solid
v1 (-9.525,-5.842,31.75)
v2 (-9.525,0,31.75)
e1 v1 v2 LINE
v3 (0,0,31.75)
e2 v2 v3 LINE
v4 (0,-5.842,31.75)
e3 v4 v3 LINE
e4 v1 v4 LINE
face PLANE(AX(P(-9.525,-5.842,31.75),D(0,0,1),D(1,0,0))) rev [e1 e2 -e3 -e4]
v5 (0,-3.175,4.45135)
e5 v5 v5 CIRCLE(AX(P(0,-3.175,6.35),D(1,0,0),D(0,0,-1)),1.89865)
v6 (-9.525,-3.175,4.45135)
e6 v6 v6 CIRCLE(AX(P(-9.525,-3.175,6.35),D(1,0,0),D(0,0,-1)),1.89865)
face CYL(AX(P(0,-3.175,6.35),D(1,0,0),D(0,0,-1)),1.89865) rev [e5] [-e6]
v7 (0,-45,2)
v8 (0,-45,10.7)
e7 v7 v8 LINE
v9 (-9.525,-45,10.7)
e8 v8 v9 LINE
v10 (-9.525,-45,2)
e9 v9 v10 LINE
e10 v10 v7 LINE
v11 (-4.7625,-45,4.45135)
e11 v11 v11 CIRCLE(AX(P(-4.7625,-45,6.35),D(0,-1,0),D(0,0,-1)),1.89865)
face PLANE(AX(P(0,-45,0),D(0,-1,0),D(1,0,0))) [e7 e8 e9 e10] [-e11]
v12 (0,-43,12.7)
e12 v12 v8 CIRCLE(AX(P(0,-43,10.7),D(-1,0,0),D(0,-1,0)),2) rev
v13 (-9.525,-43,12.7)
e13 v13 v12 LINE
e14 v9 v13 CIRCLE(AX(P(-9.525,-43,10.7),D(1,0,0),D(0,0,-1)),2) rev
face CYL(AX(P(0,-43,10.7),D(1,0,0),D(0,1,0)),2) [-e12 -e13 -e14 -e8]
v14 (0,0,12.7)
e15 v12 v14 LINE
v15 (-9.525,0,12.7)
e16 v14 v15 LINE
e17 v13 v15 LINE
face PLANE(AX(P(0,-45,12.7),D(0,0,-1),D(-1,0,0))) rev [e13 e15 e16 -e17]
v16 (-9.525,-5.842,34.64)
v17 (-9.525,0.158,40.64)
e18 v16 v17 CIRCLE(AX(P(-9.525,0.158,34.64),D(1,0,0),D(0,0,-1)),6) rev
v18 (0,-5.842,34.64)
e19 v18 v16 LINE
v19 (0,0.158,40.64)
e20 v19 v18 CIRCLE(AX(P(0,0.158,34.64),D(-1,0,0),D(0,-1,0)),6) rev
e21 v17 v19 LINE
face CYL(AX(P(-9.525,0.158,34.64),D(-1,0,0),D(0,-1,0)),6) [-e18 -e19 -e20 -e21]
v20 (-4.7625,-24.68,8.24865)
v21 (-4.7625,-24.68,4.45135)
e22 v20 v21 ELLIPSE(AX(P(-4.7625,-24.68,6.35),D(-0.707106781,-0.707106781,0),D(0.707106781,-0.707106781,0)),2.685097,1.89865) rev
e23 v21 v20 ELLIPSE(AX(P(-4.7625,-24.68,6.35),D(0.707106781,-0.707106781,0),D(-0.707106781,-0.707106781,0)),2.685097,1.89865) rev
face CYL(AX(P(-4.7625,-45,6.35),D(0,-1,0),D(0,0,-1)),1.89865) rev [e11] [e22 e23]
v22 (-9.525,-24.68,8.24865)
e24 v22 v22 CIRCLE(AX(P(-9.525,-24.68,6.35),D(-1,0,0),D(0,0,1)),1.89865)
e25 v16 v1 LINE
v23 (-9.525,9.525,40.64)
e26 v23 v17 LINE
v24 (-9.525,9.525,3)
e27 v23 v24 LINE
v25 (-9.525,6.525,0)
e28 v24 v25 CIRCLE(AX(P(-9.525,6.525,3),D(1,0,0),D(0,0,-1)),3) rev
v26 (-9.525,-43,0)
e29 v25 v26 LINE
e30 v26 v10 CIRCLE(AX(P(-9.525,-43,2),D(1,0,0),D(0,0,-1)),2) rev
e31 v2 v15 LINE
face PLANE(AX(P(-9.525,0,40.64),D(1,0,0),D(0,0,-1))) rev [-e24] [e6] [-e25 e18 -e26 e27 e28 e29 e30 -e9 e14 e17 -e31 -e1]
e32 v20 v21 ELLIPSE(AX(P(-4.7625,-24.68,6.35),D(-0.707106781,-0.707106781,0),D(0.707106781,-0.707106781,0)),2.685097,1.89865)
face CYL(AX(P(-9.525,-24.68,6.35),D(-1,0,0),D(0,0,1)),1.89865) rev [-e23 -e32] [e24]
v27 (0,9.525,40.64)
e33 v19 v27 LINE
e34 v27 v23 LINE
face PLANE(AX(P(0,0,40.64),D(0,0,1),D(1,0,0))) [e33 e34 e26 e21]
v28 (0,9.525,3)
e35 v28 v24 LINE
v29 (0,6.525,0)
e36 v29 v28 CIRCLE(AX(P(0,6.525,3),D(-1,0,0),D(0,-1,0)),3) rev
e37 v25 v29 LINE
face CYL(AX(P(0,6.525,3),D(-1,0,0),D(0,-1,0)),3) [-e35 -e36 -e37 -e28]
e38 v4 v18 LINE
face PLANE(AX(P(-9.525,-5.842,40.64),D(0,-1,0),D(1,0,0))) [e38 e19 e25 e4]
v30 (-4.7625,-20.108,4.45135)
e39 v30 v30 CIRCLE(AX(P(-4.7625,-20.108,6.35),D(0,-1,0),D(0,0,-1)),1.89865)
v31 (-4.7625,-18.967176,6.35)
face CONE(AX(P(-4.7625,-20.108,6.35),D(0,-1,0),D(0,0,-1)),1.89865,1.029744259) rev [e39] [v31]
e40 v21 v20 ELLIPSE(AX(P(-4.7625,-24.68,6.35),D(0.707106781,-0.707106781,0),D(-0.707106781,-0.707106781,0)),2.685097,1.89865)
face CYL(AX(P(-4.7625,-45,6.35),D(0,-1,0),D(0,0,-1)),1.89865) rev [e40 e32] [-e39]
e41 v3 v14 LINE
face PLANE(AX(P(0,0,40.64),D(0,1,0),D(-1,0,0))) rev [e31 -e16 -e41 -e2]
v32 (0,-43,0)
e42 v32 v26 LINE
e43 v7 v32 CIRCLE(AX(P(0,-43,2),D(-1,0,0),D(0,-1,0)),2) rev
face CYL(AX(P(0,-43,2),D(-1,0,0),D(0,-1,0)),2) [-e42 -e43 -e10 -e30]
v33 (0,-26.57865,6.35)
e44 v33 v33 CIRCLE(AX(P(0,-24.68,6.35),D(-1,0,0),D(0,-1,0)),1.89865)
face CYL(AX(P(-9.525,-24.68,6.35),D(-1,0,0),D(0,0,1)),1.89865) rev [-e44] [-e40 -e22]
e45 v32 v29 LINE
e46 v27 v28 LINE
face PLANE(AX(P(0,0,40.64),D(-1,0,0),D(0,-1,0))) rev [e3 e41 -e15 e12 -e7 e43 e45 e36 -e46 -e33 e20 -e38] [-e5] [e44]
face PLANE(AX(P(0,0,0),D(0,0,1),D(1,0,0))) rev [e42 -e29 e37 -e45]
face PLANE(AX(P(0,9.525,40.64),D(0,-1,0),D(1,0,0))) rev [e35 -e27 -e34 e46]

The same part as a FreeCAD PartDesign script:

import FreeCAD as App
import Part
import Sketcher
Q = App.Units.Quantity


def edges_at(feature, points):
    """Names of the edges that pass closest to the given points."""
    edges = feature.Shape.Edges
    near = lambda p: min(range(len(edges)), key=lambda i: edges[i].distToShape(Part.Vertex(*p))[0])
    return sorted({f"Edge{near(p) + 1}" for p in points})

doc = App.newDocument("Part")
body = doc.addObject("PartDesign::Body", "Body")

sketch1 = doc.addObject("Sketcher::SketchObject", "Sketch")
body.addObject(sketch1)
sketch1.AttachmentSupport = (doc.XY_Plane, [""])
sketch1.MapMode = "FlatFace"
sketch1.addGeometry([
    Part.LineSegment(App.Vector(-9.525, 9.525, 0), App.Vector(-9.525, 0, 0)),
    Part.LineSegment(App.Vector(-9.525, 0, 0), App.Vector(0, 0, 0)),
    Part.LineSegment(App.Vector(0, 0, 0), App.Vector(0, 9.525, 0)),
    Part.LineSegment(App.Vector(0, 9.525, 0), App.Vector(-9.525, 9.525, 0)),
], False)
sketch1.addConstraint([
    Sketcher.Constraint("Coincident", 0, 2, 1, 1),
    Sketcher.Constraint("Coincident", 1, 2, 2, 1),
    Sketcher.Constraint("Coincident", 2, 2, 3, 1),
    Sketcher.Constraint("Coincident", 3, 2, 0, 1),
    Sketcher.Constraint("Vertical", 0),
    Sketcher.Constraint("Horizontal", 1),
    Sketcher.Constraint("Vertical", 2),
    Sketcher.Constraint("Horizontal", 3),
    Sketcher.Constraint("Coincident", 1, 2, -1, 1),
    Sketcher.Constraint("Equal", 3, 0),
    Sketcher.Constraint("DistanceX", 1, 1, 1, 2, Q("0.375 in")),
])
pad1 = doc.addObject("PartDesign::Pad", "Pad")
body.addObject(pad1)
pad1.Profile = sketch1
pad1.Length = Q("1.6 in")

sketch2 = doc.addObject("Sketcher::SketchObject", "Sketch001")
body.addObject(sketch2)
sketch2.AttachmentSupport = (doc.XZ_Plane, [""])
sketch2.MapMode = "FlatFace"
sketch2.addGeometry([
    Part.LineSegment(App.Vector(-9.525, 40.64, 0), App.Vector(-9.525, 31.75, 0)),
    Part.LineSegment(App.Vector(-9.525, 31.75, 0), App.Vector(0, 31.75, 0)),
    Part.LineSegment(App.Vector(0, 31.75, 0), App.Vector(0, 40.64, 0)),
    Part.LineSegment(App.Vector(0, 40.64, 0), App.Vector(-9.525, 40.64, 0)),
], False)
sketch2.addConstraint([
    Sketcher.Constraint("Coincident", 0, 2, 1, 1),
    Sketcher.Constraint("Coincident", 1, 2, 2, 1),
    Sketcher.Constraint("Coincident", 2, 2, 3, 1),
    Sketcher.Constraint("Coincident", 3, 2, 0, 1),
    Sketcher.Constraint("Vertical", 0),
    Sketcher.Constraint("Horizontal", 1),
    Sketcher.Constraint("Vertical", 2),
    Sketcher.Constraint("Horizontal", 3),
    Sketcher.Constraint("PointOnObject", 1, 2, -2),
    Sketcher.Constraint("DistanceY", 0, 2, 0, 1, Q("0.35 in")),
    Sketcher.Constraint("DistanceY", -1, 1, 2, 2, Q("1.6 in")),
    Sketcher.Constraint("DistanceX", 1, 1, 1, 2, Q("0.375 in")),
])
pad2 = doc.addObject("PartDesign::Pad", "Pad001")
body.addObject(pad2)
pad2.Profile = sketch2
pad2.Length = Q("0.23 in")
doc.recompute()

fillet = doc.addObject("PartDesign::Fillet", "Fillet")
body.addObject(fillet)
fillet.Base = (pad2, edges_at(pad2, [(-4.763, -5.842, 40.64)]))
fillet.Radius = 6

sketch3 = doc.addObject("Sketcher::SketchObject", "Sketch002")
body.addObject(sketch3)
sketch3.AttachmentSupport = (doc.XZ_Plane, [""])
sketch3.MapMode = "FlatFace"
sketch3.addGeometry([
    Part.LineSegment(App.Vector(-9.525, 12.7, 0), App.Vector(-9.525, 0, 0)),
    Part.LineSegment(App.Vector(-9.525, 0, 0), App.Vector(0, 0, 0)),
    Part.LineSegment(App.Vector(0, 0, 0), App.Vector(0, 12.7, 0)),
    Part.LineSegment(App.Vector(0, 12.7, 0), App.Vector(-9.525, 12.7, 0)),
], False)
sketch3.addConstraint([
    Sketcher.Constraint("Coincident", 0, 2, 1, 1),
    Sketcher.Constraint("Coincident", 1, 2, 2, 1),
    Sketcher.Constraint("Coincident", 2, 2, 3, 1),
    Sketcher.Constraint("Coincident", 3, 2, 0, 1),
    Sketcher.Constraint("Vertical", 0),
    Sketcher.Constraint("Horizontal", 1),
    Sketcher.Constraint("Vertical", 2),
    Sketcher.Constraint("Horizontal", 3),
    Sketcher.Constraint("Coincident", 1, 2, -1, 1),
    Sketcher.Constraint("DistanceY", 0, 2, 0, 1, Q("0.5 in")),
    Sketcher.Constraint("DistanceX", 1, 1, 1, 2, Q("0.375 in")),
])
pad3 = doc.addObject("PartDesign::Pad", "Pad002")
body.addObject(pad3)
pad3.Profile = sketch3
pad3.Length = 45
doc.recompute()

fillet2 = doc.addObject("PartDesign::Fillet", "Fillet001")
body.addObject(fillet2)
fillet2.Base = (pad3, edges_at(pad3, [(-4.763, 9.525, 0)]))
fillet2.Radius = 3

sketch4 = doc.addObject("Sketcher::SketchObject", "Sketch003")
body.addObject(sketch4)
sketch4.AttachmentSupport = (doc.YZ_Plane, [""])
sketch4.MapMode = "FlatFace"
sketch4.addGeometry(Part.Circle(App.Vector(-3.175, 6.35, 0), App.Vector(0, 0, 1), 1.89865), False)
sketch4.addConstraint([
    Sketcher.Constraint("Diameter", 0, Q("0.1495 in")),
    Sketcher.Constraint("DistanceY", -1, 1, 0, 3, Q("0.25 in")),
    Sketcher.Constraint("DistanceX", 0, 3, -1, 1, Q("0.125 in")),
])
doc.recompute()
hole = doc.addObject("PartDesign::Hole", "Hole")
body.addObject(hole)
hole.Profile = sketch4
hole.ThreadType = "None"
hole.Diameter = Q("0.1495 in")
hole.DepthType = "Dimension"
hole.Depth = Q("0.39 in")
hole.DrillPoint = "Angled"
hole.DrillPointAngle = 118

sketch5 = doc.addObject("Sketcher::SketchObject", "Sketch004")
body.addObject(sketch5)
sketch5.AttachmentSupport = (doc.XZ_Plane, [""])
sketch5.MapMode = "FlatFace"
sketch5.AttachmentOffset = App.Placement(App.Vector(0, 0, 45), App.Rotation())
sketch5.addGeometry(Part.Circle(App.Vector(-4.7625, 6.35, 0), App.Vector(0, 0, 1), 1.89865), False)
sketch5.addConstraint([
    Sketcher.Constraint("Diameter", 0, Q("0.1495 in")),
    Sketcher.Constraint("DistanceY", -1, 1, 0, 3, Q("0.25 in")),
    Sketcher.Constraint("DistanceX", 0, 3, -1, 1, Q("0.1875 in")),
])
doc.recompute()
hole2 = doc.addObject("PartDesign::Hole", "Hole001")
body.addObject(hole2)
hole2.Profile = sketch5
hole2.ThreadType = "None"
hole2.Diameter = Q("0.1495 in")
hole2.DepthType = "Dimension"
hole2.Depth = Q("0.98 in")
hole2.DrillPoint = "Angled"
hole2.DrillPointAngle = 118

sketch6 = doc.addObject("Sketcher::SketchObject", "Sketch005")
body.addObject(sketch6)
sketch6.AttachmentSupport = (doc.YZ_Plane, [""])
sketch6.MapMode = "FlatFace"
sketch6.AttachmentOffset = App.Placement(App.Vector(0, 0, -0.375 * 25.4), App.Rotation())
sketch6.addGeometry(Part.Circle(App.Vector(-24.68, 6.35, 0), App.Vector(0, 0, 1), 1.89865), False)
sketch6.addConstraint([
    Sketcher.Constraint("Diameter", 0, Q("0.1495 in")),
    Sketcher.Constraint("DistanceY", -1, 1, 0, 3, Q("0.25 in")),
    Sketcher.Constraint("DistanceX", 0, 3, -1, 1, 24.68),
])
doc.recompute()
hole3 = doc.addObject("PartDesign::Hole", "Hole002")
body.addObject(hole3)
hole3.Profile = sketch6
hole3.ThreadType = "None"
hole3.Diameter = Q("0.1495 in")
hole3.DepthType = "Dimension"
hole3.Depth = Q("1.18 in")
hole3.DrillPoint = "Angled"
hole3.DrillPointAngle = 118
hole3.Reversed = True
doc.recompute()

fillet3 = doc.addObject("PartDesign::Fillet", "Fillet002")
body.addObject(fillet3)
fillet3.Base = (hole3, edges_at(hole3, [(-4.763, -45, 12.7), (-4.763, -45, 0)]))
fillet3.Radius = 2

doc.recompute()
